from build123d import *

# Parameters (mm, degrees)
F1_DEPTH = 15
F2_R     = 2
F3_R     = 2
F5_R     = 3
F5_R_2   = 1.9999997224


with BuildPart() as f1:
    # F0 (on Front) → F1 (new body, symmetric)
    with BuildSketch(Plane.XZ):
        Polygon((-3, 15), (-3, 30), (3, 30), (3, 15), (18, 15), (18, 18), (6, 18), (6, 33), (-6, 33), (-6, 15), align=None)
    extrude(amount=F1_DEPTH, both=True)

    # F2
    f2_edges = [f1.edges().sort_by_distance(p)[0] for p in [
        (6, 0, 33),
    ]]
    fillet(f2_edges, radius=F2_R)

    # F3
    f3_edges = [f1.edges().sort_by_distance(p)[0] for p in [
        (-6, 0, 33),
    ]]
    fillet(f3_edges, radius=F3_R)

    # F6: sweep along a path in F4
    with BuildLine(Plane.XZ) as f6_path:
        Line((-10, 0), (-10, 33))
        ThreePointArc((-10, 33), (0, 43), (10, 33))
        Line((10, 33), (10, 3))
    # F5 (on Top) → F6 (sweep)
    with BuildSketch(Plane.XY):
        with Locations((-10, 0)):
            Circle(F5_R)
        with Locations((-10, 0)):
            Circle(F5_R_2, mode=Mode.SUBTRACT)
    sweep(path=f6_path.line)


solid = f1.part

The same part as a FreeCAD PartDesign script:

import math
import FreeCAD as App
import Part
import Sketcher
from FreeCAD import Vector
Q = App.Units.Quantity


def edges_at(feature, points):
    """Names of the edges that pass closest to the given points."""
    edges = feature.Shape.Edges
    near = lambda p: min(range(len(edges)), key=lambda i: edges[i].distToShape(Part.Vertex(*p))[0])
    return sorted({f"Edge{near(p) + 1}" for p in points})


def add_polygon(sketch, points):
    """Adds a closed chain of lines whose ends are joined by coincident constraints."""
    first, n = sketch.GeometryCount, len(points)
    for a, b in zip(points, points[1:] + points[:1]):
        sketch.addGeometry(Part.LineSegment(App.Vector(*a, 0), App.Vector(*b, 0)), False)
    for i in range(n):
        sketch.addConstraint(Sketcher.Constraint("Coincident", first + i, 2, first + (i + 1) % n, 1))

doc = App.newDocument("Part")
body = doc.addObject("PartDesign::Body", "Body")

# Sketch on XZ plane
sketch1 = body.newObject("Sketcher::SketchObject", "Sketch")
sketch1.AttachmentSupport = (doc.getObject("XZ_Plane"), [""])
sketch1.MapMode = "FlatFace"
add_polygon(sketch1, [(-3, 15), (-3, 30), (3, 30), (3, 15), (18, 15), (18, 18), (6, 18), (6, 33), (-6, 33), (-6, 15)])  # lines 0-9
sketch1.addConstraint([
    Sketcher.Constraint("Vertical", 0),
    Sketcher.Constraint("Horizontal", 1),
    Sketcher.Constraint("Vertical", 2),
    Sketcher.Constraint("Horizontal", 3),
    Sketcher.Constraint("Vertical", 4),
    Sketcher.Constraint("Horizontal", 5),
    Sketcher.Constraint("Vertical", 6),
    Sketcher.Constraint("Horizontal", 7),
    Sketcher.Constraint("Vertical", 8),
    Sketcher.Constraint("Horizontal", 9),
    Sketcher.Constraint("Symmetric", 2, 2, 9, 2, -2),
    Sketcher.Constraint("Equal", 5, 7),
    Sketcher.Constraint("Equal", 3, 0),
    Sketcher.Constraint("Equal", 9, 4),
    Sketcher.Constraint("Equal", 2, 6),
    Sketcher.Constraint("DistanceX", 1, 1, 1, 2, Q("6 mm")),
    Sketcher.Constraint("DistanceX", 3, 1, 3, 2, Q("15 mm")),
    Sketcher.Constraint("DistanceX", 5, 2, 5, 1, Q("12 mm")),
    Sketcher.Constraint("DistanceY", -1, 1, 0, 2, Q("30 mm")),
])
pad1 = body.newObject("PartDesign::Pad", "Pad")
pad1.Profile = sketch1
pad1.Length = 30
pad1.Midplane = True
doc.recompute()

fillet = body.newObject("PartDesign::Fillet", "Fillet")
fillet.Base = (pad1, edges_at(pad1, [(6, 0, 33)]))
fillet.Radius = 2
doc.recompute()

fillet2 = body.newObject("PartDesign::Fillet", "Fillet001")
fillet2.Base = (fillet, edges_at(fillet, [(-6, 0, 33)]))
fillet2.Radius = 2

# Sketch on XY plane
sketch2 = body.newObject("Sketcher::SketchObject", "Sketch001")
sketch2.AttachmentSupport = (doc.getObject("XY_Plane"), [""])
sketch2.MapMode = "FlatFace"
sketch2.addGeometry([
    Part.Circle(Vector(-10, 0, 0), Vector(0, 0, 1), 3),
    Part.Circle(Vector(-10, 0, 0), Vector(0, 0, 1), 2),
], False)
sketch2.addConstraint([
    Sketcher.Constraint("Coincident", 1, 3, 0, 3),
    Sketcher.Constraint("PointOnObject", 0, 3, -1),
    Sketcher.Constraint("Diameter", 0, Q("6 mm")),
    Sketcher.Constraint("Diameter", 1, Q("3.999999 mm")),
    Sketcher.Constraint("DistanceX", 0, 3, -1, 1, Q("10 mm")),
])

# Sketch on XZ plane
sketch3 = body.newObject("Sketcher::SketchObject", "Sketch002")
sketch3.AttachmentSupport = (doc.getObject("XZ_Plane"), [""])
sketch3.MapMode = "FlatFace"
sketch3.addGeometry([
    Part.LineSegment(Vector(-10, 0, 0), Vector(-10, 33, 0)),
    Part.ArcOfCircle(Part.Circle(Vector(0, 33, 0), Vector(0, 0, 1), 10), math.radians(0), math.radians(180)),
    Part.LineSegment(Vector(10, 33, 0), Vector(10, 3, 0)),
], False)
sketch3.addConstraint([
    Sketcher.Constraint("Tangent", 0, 2, 1, 2),
    Sketcher.Constraint("Tangent", 1, 1, 2, 1),
    Sketcher.Constraint("Vertical", 0),
    Sketcher.Constraint("Vertical", 2),
    Sketcher.Constraint("PointOnObject", 1, 3, -2),
    Sketcher.Constraint("PointOnObject", 0, 1, -1),
    Sketcher.Constraint("Radius", 1, Q("10 mm")),
    Sketcher.Constraint("DistanceY", 0, 1, 0, 2, Q("33 mm")),
    Sketcher.Constraint("DistanceY", 2, 2, 2, 1, Q("30 mm")),
])
doc.recompute()

additivepipe = body.newObject("PartDesign::AdditivePipe", "AdditivePipe")
additivepipe.Profile = sketch2
additivepipe.Spine = (sketch3, ["Edge1", "Edge2", "Edge3"])

doc.recompute()
